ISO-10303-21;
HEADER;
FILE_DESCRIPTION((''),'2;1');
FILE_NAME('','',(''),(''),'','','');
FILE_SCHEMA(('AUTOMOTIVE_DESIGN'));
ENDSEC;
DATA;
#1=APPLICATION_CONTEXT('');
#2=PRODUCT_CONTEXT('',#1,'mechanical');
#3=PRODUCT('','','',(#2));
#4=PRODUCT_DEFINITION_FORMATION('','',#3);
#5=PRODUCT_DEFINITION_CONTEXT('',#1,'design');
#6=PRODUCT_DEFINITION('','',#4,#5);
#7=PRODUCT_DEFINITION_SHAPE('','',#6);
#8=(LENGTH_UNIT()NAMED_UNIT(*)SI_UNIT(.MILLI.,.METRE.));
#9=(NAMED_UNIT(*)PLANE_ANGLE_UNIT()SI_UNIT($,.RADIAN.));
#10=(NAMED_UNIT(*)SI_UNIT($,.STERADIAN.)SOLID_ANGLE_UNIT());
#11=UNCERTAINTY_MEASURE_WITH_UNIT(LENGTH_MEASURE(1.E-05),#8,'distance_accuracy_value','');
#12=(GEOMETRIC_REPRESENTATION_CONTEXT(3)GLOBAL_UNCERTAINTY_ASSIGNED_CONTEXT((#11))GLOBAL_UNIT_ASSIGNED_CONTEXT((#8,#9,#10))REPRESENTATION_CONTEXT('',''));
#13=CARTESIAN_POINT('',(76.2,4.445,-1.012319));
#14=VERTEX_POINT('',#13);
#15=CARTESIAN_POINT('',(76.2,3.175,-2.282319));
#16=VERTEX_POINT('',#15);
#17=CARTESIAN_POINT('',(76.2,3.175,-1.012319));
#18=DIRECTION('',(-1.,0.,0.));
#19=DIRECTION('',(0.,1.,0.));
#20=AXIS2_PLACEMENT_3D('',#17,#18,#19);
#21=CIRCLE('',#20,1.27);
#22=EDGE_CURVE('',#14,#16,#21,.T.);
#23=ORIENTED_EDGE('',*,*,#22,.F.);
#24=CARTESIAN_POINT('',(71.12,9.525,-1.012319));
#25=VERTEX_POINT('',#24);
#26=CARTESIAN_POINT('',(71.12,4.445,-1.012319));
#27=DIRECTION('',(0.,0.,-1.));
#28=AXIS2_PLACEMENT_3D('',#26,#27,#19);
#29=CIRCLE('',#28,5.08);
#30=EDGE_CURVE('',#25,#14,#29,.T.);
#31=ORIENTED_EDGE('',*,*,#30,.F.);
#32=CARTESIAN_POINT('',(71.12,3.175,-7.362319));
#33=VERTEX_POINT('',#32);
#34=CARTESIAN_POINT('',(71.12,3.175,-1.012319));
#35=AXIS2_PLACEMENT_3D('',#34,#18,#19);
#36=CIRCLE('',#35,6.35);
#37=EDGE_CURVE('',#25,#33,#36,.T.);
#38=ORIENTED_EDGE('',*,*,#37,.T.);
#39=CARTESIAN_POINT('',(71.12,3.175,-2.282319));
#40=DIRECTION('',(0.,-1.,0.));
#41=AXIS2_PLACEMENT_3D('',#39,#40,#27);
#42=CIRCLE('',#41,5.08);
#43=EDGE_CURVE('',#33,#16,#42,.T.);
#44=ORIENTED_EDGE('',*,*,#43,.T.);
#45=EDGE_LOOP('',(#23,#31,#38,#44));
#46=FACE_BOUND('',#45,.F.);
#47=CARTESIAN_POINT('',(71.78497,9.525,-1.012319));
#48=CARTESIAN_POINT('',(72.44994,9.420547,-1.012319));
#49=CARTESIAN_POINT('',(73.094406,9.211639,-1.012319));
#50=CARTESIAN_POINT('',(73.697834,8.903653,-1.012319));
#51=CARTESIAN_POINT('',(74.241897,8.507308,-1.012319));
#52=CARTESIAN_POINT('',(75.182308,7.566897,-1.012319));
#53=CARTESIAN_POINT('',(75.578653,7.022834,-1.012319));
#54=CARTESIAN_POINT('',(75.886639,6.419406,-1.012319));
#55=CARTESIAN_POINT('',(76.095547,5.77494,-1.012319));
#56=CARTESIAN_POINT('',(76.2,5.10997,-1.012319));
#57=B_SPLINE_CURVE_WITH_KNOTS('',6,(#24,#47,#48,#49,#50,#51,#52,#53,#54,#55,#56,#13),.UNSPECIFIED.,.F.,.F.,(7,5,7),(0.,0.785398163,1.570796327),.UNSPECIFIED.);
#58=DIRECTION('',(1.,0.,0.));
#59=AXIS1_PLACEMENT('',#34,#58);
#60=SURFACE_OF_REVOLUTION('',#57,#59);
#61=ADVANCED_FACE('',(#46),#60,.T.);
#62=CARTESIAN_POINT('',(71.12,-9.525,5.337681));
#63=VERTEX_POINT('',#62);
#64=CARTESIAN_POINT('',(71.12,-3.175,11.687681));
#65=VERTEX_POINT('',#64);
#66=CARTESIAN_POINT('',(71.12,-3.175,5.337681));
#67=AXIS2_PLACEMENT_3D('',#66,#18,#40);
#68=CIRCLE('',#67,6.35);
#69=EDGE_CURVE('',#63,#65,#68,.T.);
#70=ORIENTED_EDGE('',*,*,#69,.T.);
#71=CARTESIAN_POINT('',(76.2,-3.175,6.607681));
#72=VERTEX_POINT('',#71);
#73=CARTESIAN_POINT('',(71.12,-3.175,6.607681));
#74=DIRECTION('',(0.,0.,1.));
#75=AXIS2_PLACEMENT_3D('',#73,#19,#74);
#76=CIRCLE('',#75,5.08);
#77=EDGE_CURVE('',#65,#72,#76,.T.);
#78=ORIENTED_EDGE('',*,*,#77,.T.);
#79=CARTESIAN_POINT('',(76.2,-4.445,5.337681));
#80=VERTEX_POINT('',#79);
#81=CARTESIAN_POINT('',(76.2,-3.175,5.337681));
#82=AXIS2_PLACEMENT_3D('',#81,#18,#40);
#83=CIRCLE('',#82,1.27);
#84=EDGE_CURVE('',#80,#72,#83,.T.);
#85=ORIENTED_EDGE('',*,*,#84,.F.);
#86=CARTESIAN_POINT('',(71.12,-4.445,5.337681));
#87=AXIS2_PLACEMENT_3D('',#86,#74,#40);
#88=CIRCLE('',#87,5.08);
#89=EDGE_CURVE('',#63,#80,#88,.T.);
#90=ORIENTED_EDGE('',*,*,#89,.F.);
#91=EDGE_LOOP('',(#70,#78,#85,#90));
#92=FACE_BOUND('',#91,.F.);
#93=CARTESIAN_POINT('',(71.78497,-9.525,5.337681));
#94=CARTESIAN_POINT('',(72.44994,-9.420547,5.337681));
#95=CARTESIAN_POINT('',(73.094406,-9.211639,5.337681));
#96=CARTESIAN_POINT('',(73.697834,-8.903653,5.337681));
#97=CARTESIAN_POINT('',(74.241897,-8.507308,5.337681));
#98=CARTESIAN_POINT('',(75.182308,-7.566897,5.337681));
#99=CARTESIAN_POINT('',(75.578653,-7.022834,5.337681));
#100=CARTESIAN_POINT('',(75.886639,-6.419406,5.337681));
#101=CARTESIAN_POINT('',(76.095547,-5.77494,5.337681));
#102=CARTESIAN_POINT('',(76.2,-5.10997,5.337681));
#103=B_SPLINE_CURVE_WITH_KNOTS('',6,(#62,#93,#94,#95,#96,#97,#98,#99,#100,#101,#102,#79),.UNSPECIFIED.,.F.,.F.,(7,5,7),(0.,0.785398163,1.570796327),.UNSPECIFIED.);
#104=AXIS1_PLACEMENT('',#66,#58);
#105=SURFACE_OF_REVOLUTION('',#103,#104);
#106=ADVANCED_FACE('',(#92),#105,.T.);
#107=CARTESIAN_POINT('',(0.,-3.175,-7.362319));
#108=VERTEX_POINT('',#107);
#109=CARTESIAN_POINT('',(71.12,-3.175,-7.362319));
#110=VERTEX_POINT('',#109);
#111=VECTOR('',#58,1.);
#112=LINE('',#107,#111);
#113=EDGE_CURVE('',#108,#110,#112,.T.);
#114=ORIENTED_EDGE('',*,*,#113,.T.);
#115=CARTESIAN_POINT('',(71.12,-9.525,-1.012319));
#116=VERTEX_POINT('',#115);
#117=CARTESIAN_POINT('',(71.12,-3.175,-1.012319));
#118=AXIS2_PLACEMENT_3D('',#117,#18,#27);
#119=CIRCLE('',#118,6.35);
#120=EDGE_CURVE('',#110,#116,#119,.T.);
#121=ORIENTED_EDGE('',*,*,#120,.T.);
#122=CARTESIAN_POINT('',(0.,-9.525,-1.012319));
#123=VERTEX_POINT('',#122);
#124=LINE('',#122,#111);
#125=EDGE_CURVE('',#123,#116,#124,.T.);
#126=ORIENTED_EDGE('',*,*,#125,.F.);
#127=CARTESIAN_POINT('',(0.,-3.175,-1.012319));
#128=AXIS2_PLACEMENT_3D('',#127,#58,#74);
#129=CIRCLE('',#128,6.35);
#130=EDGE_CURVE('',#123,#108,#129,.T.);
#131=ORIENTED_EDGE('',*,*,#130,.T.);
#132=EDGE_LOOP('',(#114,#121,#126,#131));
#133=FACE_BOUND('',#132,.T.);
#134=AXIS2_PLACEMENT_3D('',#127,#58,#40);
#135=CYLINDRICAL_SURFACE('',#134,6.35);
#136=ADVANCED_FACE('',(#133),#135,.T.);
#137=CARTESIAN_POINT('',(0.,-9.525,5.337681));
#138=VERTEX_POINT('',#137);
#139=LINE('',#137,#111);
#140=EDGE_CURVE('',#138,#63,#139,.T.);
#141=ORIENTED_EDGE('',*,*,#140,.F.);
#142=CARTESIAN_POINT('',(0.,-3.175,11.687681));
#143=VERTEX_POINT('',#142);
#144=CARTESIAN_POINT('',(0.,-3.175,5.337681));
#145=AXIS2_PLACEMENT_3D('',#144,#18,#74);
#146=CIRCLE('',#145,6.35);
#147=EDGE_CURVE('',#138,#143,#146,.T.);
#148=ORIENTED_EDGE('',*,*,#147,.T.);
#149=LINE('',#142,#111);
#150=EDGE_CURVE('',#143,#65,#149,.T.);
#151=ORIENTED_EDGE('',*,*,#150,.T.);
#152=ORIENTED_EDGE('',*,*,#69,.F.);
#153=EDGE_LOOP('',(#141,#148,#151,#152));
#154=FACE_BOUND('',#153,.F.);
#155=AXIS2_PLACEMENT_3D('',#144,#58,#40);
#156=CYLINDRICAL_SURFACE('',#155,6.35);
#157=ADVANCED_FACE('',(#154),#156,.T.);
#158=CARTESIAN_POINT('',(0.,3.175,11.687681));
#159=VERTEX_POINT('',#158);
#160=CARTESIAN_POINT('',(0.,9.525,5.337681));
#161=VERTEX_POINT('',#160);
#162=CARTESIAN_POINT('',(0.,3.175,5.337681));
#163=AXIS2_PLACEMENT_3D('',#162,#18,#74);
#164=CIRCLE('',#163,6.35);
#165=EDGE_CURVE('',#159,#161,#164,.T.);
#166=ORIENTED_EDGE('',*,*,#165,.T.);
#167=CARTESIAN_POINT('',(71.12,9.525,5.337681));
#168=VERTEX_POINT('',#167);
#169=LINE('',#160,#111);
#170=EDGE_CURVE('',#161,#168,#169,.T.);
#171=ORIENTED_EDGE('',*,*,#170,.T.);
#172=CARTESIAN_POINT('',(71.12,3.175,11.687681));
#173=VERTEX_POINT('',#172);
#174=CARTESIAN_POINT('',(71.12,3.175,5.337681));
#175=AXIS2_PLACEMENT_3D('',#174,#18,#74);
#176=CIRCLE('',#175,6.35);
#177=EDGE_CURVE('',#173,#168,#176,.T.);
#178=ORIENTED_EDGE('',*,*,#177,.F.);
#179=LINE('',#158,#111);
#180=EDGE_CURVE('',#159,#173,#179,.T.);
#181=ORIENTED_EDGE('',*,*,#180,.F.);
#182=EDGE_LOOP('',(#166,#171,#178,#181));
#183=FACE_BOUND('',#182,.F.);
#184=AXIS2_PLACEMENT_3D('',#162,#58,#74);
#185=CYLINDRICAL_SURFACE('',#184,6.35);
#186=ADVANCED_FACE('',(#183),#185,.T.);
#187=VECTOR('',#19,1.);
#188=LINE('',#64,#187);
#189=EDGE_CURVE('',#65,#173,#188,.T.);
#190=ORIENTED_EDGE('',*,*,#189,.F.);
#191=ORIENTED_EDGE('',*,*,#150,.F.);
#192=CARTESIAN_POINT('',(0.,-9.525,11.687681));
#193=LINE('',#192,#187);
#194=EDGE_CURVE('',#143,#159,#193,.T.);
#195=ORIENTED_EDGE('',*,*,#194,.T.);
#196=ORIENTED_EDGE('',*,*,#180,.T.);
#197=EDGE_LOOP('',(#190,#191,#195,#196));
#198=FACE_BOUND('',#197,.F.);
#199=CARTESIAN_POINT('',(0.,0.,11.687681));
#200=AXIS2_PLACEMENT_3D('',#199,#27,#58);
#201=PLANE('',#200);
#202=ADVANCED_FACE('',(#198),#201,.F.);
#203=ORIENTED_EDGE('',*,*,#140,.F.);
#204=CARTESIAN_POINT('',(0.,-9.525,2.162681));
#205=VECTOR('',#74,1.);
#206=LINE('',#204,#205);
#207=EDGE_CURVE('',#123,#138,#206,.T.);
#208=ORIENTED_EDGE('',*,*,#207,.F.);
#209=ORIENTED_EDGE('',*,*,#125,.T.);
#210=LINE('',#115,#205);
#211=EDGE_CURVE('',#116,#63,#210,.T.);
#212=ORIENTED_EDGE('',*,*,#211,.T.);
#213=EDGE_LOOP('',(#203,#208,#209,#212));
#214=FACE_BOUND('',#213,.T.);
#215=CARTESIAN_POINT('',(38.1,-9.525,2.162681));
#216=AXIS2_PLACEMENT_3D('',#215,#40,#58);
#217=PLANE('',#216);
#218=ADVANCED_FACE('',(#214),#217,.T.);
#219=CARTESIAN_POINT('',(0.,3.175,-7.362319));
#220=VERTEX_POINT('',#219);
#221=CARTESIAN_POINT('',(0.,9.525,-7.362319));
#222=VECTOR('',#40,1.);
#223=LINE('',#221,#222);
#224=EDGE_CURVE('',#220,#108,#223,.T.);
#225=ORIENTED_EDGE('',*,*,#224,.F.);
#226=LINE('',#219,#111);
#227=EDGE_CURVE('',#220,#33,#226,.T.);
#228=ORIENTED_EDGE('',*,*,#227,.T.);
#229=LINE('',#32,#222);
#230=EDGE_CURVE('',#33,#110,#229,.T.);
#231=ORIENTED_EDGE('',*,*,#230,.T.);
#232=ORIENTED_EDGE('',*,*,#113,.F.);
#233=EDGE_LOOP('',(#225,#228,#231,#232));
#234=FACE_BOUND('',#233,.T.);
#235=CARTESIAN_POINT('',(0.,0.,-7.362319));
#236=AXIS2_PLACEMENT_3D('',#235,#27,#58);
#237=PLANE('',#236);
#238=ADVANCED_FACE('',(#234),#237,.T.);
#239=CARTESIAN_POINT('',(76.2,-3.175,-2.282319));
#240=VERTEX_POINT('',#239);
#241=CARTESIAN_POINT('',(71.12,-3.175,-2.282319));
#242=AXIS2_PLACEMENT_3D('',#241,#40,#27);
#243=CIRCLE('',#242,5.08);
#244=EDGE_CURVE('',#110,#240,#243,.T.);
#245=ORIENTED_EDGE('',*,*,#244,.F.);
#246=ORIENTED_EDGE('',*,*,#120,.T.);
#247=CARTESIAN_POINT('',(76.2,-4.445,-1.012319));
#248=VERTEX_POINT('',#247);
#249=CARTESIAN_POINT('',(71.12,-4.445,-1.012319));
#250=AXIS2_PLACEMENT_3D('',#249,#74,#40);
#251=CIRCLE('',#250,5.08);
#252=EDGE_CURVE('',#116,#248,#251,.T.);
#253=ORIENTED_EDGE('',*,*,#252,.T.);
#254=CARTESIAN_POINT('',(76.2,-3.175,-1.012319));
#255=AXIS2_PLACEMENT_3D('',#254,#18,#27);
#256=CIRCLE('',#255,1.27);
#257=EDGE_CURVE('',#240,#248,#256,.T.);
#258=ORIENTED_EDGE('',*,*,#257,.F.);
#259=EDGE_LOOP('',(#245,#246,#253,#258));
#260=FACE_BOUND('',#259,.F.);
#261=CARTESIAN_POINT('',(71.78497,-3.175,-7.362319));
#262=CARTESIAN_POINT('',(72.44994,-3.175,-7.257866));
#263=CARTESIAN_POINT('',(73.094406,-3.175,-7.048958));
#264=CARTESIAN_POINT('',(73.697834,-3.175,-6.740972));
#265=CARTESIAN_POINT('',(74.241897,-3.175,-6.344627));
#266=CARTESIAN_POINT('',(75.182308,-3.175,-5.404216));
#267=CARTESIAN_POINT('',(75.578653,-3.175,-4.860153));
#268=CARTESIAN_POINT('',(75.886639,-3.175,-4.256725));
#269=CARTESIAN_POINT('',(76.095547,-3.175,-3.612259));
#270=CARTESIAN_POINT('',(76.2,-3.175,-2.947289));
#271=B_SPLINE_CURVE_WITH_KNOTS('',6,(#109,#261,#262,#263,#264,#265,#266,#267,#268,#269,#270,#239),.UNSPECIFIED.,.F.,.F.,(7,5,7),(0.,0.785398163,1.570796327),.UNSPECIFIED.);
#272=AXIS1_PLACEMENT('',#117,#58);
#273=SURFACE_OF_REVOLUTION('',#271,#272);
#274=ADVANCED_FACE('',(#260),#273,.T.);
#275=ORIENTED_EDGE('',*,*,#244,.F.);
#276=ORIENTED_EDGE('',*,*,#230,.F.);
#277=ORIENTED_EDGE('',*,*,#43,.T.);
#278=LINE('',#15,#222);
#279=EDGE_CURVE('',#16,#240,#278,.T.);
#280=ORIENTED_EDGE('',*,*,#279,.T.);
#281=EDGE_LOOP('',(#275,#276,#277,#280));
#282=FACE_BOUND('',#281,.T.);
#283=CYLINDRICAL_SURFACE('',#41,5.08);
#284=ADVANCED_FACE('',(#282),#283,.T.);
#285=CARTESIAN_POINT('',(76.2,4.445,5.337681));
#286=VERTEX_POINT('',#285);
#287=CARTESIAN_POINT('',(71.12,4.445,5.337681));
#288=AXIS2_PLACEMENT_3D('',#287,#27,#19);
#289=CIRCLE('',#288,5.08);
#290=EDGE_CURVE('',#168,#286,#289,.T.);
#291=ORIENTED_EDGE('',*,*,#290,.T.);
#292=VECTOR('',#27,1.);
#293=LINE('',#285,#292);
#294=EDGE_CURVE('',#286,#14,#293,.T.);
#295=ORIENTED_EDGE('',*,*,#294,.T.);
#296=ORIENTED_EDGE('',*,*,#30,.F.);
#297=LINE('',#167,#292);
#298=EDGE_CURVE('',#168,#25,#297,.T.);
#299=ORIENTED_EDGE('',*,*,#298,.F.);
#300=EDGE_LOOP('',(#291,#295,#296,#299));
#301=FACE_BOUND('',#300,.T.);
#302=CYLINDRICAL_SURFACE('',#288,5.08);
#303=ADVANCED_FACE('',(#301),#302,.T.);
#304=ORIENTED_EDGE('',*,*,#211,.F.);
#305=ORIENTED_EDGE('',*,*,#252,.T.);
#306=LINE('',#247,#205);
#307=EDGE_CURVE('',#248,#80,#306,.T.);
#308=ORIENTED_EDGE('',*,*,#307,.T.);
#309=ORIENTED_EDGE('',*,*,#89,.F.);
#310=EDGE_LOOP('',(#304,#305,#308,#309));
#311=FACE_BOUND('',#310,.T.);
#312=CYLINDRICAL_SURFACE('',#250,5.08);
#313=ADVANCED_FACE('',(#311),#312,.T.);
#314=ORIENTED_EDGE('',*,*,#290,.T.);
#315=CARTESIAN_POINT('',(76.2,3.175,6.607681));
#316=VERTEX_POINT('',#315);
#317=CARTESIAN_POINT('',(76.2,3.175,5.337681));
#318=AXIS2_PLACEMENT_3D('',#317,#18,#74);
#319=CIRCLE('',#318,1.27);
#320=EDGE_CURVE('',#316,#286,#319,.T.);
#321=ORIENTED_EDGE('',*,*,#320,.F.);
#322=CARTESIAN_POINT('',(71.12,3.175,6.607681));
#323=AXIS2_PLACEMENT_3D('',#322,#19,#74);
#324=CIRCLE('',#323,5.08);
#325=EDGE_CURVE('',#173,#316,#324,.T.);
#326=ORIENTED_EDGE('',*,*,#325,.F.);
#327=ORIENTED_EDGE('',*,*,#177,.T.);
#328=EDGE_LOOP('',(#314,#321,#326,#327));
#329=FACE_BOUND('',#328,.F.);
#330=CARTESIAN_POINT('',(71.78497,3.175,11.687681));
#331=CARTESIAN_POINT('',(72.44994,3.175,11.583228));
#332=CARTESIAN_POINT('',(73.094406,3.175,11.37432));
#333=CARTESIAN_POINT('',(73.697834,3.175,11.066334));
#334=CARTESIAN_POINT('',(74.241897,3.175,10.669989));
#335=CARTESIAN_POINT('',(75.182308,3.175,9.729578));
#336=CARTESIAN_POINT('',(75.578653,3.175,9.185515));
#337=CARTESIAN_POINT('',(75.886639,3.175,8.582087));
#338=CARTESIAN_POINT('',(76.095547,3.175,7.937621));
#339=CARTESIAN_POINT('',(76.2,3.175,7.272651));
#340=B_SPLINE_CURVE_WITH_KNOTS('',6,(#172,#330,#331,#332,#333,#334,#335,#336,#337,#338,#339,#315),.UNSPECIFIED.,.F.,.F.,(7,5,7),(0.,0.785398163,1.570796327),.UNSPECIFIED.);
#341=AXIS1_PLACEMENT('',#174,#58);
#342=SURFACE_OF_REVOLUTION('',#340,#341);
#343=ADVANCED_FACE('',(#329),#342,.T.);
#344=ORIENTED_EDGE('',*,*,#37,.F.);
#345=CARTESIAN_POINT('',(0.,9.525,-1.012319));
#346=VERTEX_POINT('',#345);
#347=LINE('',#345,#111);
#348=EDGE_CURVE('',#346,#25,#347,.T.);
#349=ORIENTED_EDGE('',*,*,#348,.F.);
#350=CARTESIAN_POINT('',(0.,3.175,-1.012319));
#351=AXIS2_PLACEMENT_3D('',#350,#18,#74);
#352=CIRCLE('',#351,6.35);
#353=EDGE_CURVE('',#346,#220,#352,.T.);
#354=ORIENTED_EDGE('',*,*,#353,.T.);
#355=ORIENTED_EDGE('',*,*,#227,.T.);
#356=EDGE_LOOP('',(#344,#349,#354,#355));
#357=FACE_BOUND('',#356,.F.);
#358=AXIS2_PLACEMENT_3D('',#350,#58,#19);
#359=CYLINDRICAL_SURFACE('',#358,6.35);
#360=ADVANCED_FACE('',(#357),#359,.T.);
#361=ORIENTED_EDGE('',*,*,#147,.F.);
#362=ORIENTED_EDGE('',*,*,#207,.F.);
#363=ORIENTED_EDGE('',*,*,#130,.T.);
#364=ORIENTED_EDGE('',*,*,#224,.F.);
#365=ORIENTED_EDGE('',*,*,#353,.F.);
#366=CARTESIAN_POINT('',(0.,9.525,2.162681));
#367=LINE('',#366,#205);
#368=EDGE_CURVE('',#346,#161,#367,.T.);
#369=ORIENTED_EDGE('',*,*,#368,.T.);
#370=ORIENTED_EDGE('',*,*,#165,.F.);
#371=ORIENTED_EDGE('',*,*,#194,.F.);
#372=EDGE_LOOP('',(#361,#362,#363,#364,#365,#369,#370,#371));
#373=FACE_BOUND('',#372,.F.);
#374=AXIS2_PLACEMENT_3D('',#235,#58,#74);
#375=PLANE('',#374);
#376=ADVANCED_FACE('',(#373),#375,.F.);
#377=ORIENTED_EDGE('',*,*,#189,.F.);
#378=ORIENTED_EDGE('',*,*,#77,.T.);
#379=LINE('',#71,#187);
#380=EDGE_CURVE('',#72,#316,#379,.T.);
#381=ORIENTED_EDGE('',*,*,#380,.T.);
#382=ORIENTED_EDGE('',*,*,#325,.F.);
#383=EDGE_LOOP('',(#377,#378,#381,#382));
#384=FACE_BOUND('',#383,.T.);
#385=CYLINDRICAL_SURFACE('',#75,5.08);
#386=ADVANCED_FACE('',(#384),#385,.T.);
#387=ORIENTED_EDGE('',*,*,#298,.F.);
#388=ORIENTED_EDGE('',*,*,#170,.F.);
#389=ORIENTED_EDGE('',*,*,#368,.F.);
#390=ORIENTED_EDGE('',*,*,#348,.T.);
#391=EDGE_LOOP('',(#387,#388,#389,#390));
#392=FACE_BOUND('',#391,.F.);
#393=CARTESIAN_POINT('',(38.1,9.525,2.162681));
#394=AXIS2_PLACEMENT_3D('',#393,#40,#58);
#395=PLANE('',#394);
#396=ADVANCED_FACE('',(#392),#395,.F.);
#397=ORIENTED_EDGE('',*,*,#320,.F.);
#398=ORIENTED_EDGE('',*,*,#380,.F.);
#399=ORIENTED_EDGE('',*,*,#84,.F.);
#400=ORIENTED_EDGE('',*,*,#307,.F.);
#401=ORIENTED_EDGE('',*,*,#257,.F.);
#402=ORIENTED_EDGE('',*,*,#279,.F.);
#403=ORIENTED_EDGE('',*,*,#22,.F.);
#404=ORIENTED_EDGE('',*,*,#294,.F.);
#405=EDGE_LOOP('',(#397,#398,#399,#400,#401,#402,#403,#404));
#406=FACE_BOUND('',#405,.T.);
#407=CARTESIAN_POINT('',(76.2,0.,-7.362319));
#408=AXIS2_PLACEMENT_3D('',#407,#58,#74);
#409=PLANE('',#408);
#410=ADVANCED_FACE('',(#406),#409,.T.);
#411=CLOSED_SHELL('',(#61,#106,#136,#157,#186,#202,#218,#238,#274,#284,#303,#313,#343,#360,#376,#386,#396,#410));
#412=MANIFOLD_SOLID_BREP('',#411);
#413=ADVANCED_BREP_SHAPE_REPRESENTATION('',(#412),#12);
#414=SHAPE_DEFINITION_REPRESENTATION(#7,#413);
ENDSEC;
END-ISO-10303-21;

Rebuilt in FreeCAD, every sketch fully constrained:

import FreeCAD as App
import Part
import Sketcher
Q = App.Units.Quantity


def edges_at(feature, points):
    """Names of the edges that pass closest to the given points."""
    edges = feature.Shape.Edges
    near = lambda p: min(range(len(edges)), key=lambda i: edges[i].distToShape(Part.Vertex(*p))[0])
    return sorted({f"Edge{near(p) + 1}" for p in points})

doc = App.newDocument("Part")
body = doc.addObject("PartDesign::Body", "Body")

sketch1 = doc.addObject("Sketcher::SketchObject", "Sketch")
body.addObject(sketch1)
sketch1.AttachmentSupport = (doc.XZ_Plane, [""])
sketch1.MapMode = "FlatFace"
sketch1.addGeometry([
    Part.LineSegment(App.Vector(0, 12, 0), App.Vector(0, -7, 0)),
    Part.LineSegment(App.Vector(0, -7, 0), App.Vector(76, -7, 0)),
    Part.LineSegment(App.Vector(76, -7, 0), App.Vector(76, 12, 0)),
    Part.LineSegment(App.Vector(76, 12, 0), App.Vector(0, 12, 0)),
], False)
sketch1.addConstraint([
    Sketcher.Constraint("Coincident", 0, 2, 1, 1),
    Sketcher.Constraint("Coincident", 1, 2, 2, 1),
    Sketcher.Constraint("Coincident", 2, 2, 3, 1),
    Sketcher.Constraint("Coincident", 3, 2, 0, 1),
    Sketcher.Constraint("Vertical", 0),
    Sketcher.Constraint("Horizontal", 1),
    Sketcher.Constraint("Vertical", 2),
    Sketcher.Constraint("Horizontal", 3),
    Sketcher.Constraint("PointOnObject", 0, 2, -2),
    Sketcher.Constraint("DistanceX", 1, 1, 1, 2, Q("3 in")),
    Sketcher.Constraint("DistanceY", 0, 2, 0, 1, Q("0.75 in")),
    Sketcher.Constraint("DistanceY", 0, 2, -1, 1, Q("7.362319 mm")),
])
pad1 = doc.addObject("PartDesign::Pad", "Pad")
body.addObject(pad1)
pad1.Profile = sketch1
pad1.Length = Q("0.75 in")
pad1.Midplane = True
doc.recompute()

fillet = doc.addObject("PartDesign::Fillet", "Fillet")
body.addObject(fillet)
fillet.Base = (pad1, edges_at(pad1, [
    (38.1, 9.525, 11.688),
    (38.1, -9.525, 11.688),
    (38.1, -9.525, -7.362),
    (38.1, 9.525, -7.362),
]))
fillet.Radius = Q("0.25 in")
doc.recompute()

fillet2 = doc.addObject("PartDesign::Fillet", "Fillet001")
body.addObject(fillet2)
fillet2.Base = (fillet, edges_at(fillet, [(76.2, 0, 11.688)]))
fillet2.Radius = Q("0.2 in")

doc.recompute()
